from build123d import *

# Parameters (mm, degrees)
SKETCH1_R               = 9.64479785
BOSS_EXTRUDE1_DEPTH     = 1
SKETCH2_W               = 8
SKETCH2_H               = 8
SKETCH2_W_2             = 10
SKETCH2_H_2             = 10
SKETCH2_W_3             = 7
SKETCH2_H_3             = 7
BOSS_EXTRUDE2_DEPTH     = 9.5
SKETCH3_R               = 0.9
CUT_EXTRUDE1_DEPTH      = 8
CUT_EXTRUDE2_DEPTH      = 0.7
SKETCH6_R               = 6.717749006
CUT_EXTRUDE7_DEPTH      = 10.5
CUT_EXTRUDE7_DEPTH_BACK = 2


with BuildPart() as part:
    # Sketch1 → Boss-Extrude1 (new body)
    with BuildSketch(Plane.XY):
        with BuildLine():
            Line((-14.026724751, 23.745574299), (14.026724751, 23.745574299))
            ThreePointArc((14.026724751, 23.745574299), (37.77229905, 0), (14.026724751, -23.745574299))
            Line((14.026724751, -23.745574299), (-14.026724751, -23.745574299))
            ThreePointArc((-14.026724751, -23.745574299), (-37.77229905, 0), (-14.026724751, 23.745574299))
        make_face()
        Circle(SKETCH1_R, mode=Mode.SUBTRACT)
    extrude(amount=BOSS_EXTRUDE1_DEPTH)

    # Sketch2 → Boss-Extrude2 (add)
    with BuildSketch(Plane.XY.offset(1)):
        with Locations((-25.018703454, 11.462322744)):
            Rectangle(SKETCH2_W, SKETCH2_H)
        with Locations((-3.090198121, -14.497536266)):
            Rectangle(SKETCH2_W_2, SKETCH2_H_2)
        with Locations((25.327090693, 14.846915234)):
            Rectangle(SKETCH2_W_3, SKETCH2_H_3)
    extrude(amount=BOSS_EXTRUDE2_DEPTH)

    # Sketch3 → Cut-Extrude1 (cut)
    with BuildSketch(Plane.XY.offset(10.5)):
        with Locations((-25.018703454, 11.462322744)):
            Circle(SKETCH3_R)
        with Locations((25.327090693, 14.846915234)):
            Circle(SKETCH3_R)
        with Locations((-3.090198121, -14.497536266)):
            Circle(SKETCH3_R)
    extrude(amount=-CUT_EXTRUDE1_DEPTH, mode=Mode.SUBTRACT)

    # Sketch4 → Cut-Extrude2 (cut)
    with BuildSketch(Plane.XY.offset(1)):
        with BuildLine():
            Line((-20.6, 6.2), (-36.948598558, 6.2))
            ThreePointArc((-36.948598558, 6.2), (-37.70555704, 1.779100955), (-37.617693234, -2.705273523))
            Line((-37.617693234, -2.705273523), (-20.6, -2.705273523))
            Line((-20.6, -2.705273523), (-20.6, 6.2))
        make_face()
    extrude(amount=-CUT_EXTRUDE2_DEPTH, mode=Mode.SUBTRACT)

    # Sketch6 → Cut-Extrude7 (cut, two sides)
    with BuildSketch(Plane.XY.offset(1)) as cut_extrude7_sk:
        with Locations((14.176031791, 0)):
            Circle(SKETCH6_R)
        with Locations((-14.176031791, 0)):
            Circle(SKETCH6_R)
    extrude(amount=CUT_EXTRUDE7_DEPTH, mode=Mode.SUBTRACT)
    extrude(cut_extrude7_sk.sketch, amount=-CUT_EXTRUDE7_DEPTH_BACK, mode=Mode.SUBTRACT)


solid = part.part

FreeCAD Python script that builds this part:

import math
import FreeCAD as App
import Part
import Sketcher
from FreeCAD import Vector
Q = App.Units.Quantity


def add_polygon(sketch, points):
    """Adds a closed chain of lines whose ends are joined by coincident constraints."""
    first, n = sketch.GeometryCount, len(points)
    for a, b in zip(points, points[1:] + points[:1]):
        sketch.addGeometry(Part.LineSegment(App.Vector(*a, 0), App.Vector(*b, 0)), False)
    for i in range(n):
        sketch.addConstraint(Sketcher.Constraint("Coincident", first + i, 2, first + (i + 1) % n, 1))

doc = App.newDocument("Part")
body = doc.addObject("PartDesign::Body", "Body")

sketch1 = doc.addObject("Sketcher::SketchObject", "Sketch")
body.addObject(sketch1)
sketch1.AttachmentSupport = (doc.XY_Plane, [""])
sketch1.MapMode = "FlatFace"
sketch1.addGeometry([
    Part.LineSegment(Vector(14, 24, 0), Vector(-14, 24, 0)),
    Part.ArcOfCircle(Part.Circle(Vector(-14, 0, 0), Vector(0, 0, 1), 24), math.radians(90), math.radians(270)),
    Part.LineSegment(Vector(-14, -24, 0), Vector(14, -24, 0)),
    Part.ArcOfCircle(Part.Circle(Vector(14, 0, 0), Vector(0, 0, 1), 24), math.radians(-90), math.radians(90)),
    Part.Circle(Vector(0, 0, 0), Vector(0, 0, 1), 10),
], False)
sketch1.addConstraint([
    Sketcher.Constraint("Tangent", 0, 2, 1, 1),
    Sketcher.Constraint("Tangent", 1, 2, 2, 1),
    Sketcher.Constraint("Tangent", 2, 2, 3, 1),
    Sketcher.Constraint("Tangent", 3, 2, 0, 1),
    Sketcher.Constraint("Horizontal", 0),
    Sketcher.Constraint("Horizontal", 2),
    Sketcher.Constraint("Coincident", 4, 3, -1, 1),
    Sketcher.Constraint("Symmetric", 1, 3, 3, 3, -1, 1),
    Sketcher.Constraint("Diameter", 4, Q("19.289596 mm")),
    Sketcher.Constraint("Radius", 1, Q("23.745574 mm")),
    Sketcher.Constraint("DistanceX", 0, 2, 0, 1, Q("28.05345 mm")),
])
pad1 = doc.addObject("PartDesign::Pad", "Pad")
body.addObject(pad1)
pad1.Profile = sketch1
pad1.Length = 1

sketch2 = doc.addObject("Sketcher::SketchObject", "Sketch001")
body.addObject(sketch2)
sketch2.AttachmentSupport = (doc.XY_Plane, [""])
sketch2.MapMode = "FlatFace"
sketch2.AttachmentOffset = App.Placement(Vector(0, 0, 1), App.Rotation())
add_polygon(sketch2, [(-29, 15), (-29, 7), (-21, 7), (-21, 15)])
add_polygon(sketch2, [(-8, -9), (-8, -19), (2, -19), (2, -9)])
add_polygon(sketch2, [(22, 18), (22, 11), (29, 11), (29, 18)])
sketch2.addConstraint([
    Sketcher.Constraint("Vertical", 0),
    Sketcher.Constraint("Horizontal", 1),
    Sketcher.Constraint("Vertical", 2),
    Sketcher.Constraint("Horizontal", 3),
    Sketcher.Constraint("Vertical", 4),
    Sketcher.Constraint("Horizontal", 5),
    Sketcher.Constraint("Vertical", 6),
    Sketcher.Constraint("Horizontal", 7),
    Sketcher.Constraint("Vertical", 8),
    Sketcher.Constraint("Horizontal", 9),
    Sketcher.Constraint("Vertical", 10),
    Sketcher.Constraint("Horizontal", 11),
    Sketcher.Constraint("Equal", 3, 0),
    Sketcher.Constraint("Equal", 7, 4),
    Sketcher.Constraint("Equal", 11, 8),
    Sketcher.Constraint("DistanceX", 1, 1, 1, 2, Q("8 mm")),
    Sketcher.Constraint("DistanceX", 5, 1, 5, 2, Q("10 mm")),
    Sketcher.Constraint("DistanceX", 9, 1, 9, 2, Q("7 mm")),
    Sketcher.Constraint("DistanceX", 4, 2, -1, 1, Q("8.090198 mm")),
    Sketcher.Constraint("DistanceX", -1, 1, 8, 2, Q("21.827091 mm")),
    Sketcher.Constraint("DistanceY", 4, 2, 1, 2, Q("26.959859 mm")),
    Sketcher.Constraint("DistanceY", 6, 2, 8, 2, Q("20.844451 mm")),
    Sketcher.Constraint("DistanceX", 0, 2, -1, 1, Q("29.018703 mm")),
    Sketcher.Constraint("DistanceY", -1, 1, 0, 2, Q("7.462323 mm")),
])
pad2 = doc.addObject("PartDesign::Pad", "Pad001")
body.addObject(pad2)
pad2.Profile = sketch2
pad2.Length = 9.5

sketch3 = doc.addObject("Sketcher::SketchObject", "Sketch002")
body.addObject(sketch3)
sketch3.AttachmentSupport = (doc.XY_Plane, [""])
sketch3.MapMode = "FlatFace"
sketch3.AttachmentOffset = App.Placement(Vector(0, 0, 10.5), App.Rotation())
sketch3.addGeometry([
    Part.Circle(Vector(-25, 11.5, 0), Vector(0, 0, 1), 0.9),
    Part.Circle(Vector(25.3, 14.8, 0), Vector(0, 0, 1), 0.9),
    Part.Circle(Vector(-3.1, -14.5, 0), Vector(0, 0, 1), 0.9),
], False)
sketch3.addConstraint([
    Sketcher.Constraint("Equal", 0, 1),
    Sketcher.Constraint("Equal", 1, 2),
    Sketcher.Constraint("Diameter", 0, Q("1.8 mm")),
    Sketcher.Constraint("DistanceX", 2, 3, -1, 1, Q("3.090198 mm")),
    Sketcher.Constraint("DistanceX", -1, 1, 1, 3, Q("25.327091 mm")),
    Sketcher.Constraint("DistanceY", 2, 3, 0, 3, Q("25.959859 mm")),
    Sketcher.Constraint("DistanceY", 2, 3, 1, 3, Q("29.344451 mm")),
    Sketcher.Constraint("DistanceX", 0, 3, -1, 1, Q("25.018703 mm")),
    Sketcher.Constraint("DistanceY", -1, 1, 0, 3, Q("11.462323 mm")),
])
pocket1 = doc.addObject("PartDesign::Pocket", "Pocket")
body.addObject(pocket1)
pocket1.Profile = sketch3
pocket1.Length = 8

sketch4 = doc.addObject("Sketcher::SketchObject", "Sketch003")
body.addObject(sketch4)
sketch4.AttachmentSupport = (doc.XY_Plane, [""])
sketch4.MapMode = "FlatFace"
sketch4.AttachmentOffset = App.Placement(Vector(0, 0, 1), App.Rotation())
sketch4.addGeometry([
    Part.LineSegment(Vector(-21, 6, 0), Vector(-37, 6, 0)),
    Part.ArcOfCircle(Part.Circle(Vector(-14, 0, 0), Vector(0, 0, 1), 24), math.radians(165), math.radians(187)),
    Part.LineSegment(Vector(-38, -3, 0), Vector(-21, -3, 0)),
    Part.LineSegment(Vector(-21, -3, 0), Vector(-21, 6, 0)),
], False)
sketch4.addConstraint([
    Sketcher.Constraint("Coincident", 0, 2, 1, 1),
    Sketcher.Constraint("Coincident", 1, 2, 2, 1),
    Sketcher.Constraint("Coincident", 2, 2, 3, 1),
    Sketcher.Constraint("Coincident", 3, 2, 0, 1),
    Sketcher.Constraint("Horizontal", 0),
    Sketcher.Constraint("Horizontal", 2),
    Sketcher.Constraint("Vertical", 3),
    Sketcher.Constraint("PointOnObject", 1, 3, -1),
    Sketcher.Constraint("DistanceY", -1, 1, 0, 2, Q("6.2 mm")),
    Sketcher.Constraint("DistanceX", 2, 2, -1, 1, Q("20.6 mm")),
    Sketcher.Constraint("DistanceX", 0, 2, 0, 1, Q("16.348599 mm")),
    Sketcher.Constraint("Radius", 1, Q("23.745574 mm")),
    Sketcher.Constraint("DistanceX", 2, 1, 2, 2, Q("17.017693 mm")),
])
pocket2 = doc.addObject("PartDesign::Pocket", "Pocket001")
body.addObject(pocket2)
pocket2.Profile = sketch4
pocket2.Length = 0.7

sketch5 = doc.addObject("Sketcher::SketchObject", "Sketch004")
body.addObject(sketch5)
sketch5.AttachmentSupport = (doc.XY_Plane, [""])
sketch5.MapMode = "FlatFace"
sketch5.AttachmentOffset = App.Placement(Vector(0, 0, 1), App.Rotation())
sketch5.addGeometry([
    Part.Circle(Vector(14, 0, 0), Vector(0, 0, 1), 7),
    Part.Circle(Vector(-14, 0, 0), Vector(0, 0, 1), 7),
], False)
sketch5.addConstraint([
    Sketcher.Constraint("Equal", 0, 1),
    Sketcher.Constraint("Symmetric", 0, 3, 1, 3, -1, 1),
    Sketcher.Constraint("PointOnObject", 0, 3, -1),
    Sketcher.Constraint("Diameter", 0, Q("13.435498 mm")),
    Sketcher.Constraint("DistanceX", -1, 1, 0, 3, Q("14.176032 mm")),
])
pocket3 = doc.addObject("PartDesign::Pocket", "Pocket002")
body.addObject(pocket3)
pocket3.Profile = sketch5
pocket3.Type = "ThroughAll"
pocket3.Midplane = True

doc.recompute()
